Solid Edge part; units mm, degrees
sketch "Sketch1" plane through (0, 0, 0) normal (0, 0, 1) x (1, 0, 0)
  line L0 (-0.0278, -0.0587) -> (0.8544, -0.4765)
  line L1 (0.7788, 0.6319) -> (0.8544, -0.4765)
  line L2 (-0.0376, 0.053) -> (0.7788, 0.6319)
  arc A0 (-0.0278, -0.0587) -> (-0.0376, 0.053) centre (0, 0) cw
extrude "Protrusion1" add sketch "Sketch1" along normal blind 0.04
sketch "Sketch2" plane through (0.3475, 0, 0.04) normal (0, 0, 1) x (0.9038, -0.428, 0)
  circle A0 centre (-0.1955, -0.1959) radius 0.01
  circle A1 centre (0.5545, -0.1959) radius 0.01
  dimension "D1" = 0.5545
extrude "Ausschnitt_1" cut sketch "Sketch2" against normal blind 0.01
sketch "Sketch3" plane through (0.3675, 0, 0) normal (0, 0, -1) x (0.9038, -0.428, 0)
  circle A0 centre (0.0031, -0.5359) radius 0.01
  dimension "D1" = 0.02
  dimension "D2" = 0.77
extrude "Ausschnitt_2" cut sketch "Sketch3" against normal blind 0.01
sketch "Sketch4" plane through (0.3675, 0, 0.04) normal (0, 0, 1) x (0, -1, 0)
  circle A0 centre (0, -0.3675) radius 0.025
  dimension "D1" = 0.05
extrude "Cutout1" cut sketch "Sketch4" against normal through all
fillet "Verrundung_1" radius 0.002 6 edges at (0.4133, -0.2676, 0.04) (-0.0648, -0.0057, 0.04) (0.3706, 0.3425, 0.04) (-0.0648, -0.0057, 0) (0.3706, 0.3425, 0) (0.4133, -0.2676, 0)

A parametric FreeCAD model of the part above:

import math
import FreeCAD as App
import Part
import Sketcher
from FreeCAD import Vector
Q = App.Units.Quantity


def edges_at(feature, points):
    """Names of the edges that pass closest to the given points."""
    edges = feature.Shape.Edges
    near = lambda p: min(range(len(edges)), key=lambda i: edges[i].distToShape(Part.Vertex(*p))[0])
    return sorted({f"Edge{near(p) + 1}" for p in points})

doc = App.newDocument("Part")
body = doc.addObject("PartDesign::Body", "Body")

# Sketch on XY plane
sketch1 = body.newObject("Sketcher::SketchObject", "Sketch")
sketch1.AttachmentSupport = (doc.getObject("XY_Plane"), [""])
sketch1.MapMode = "FlatFace"
sketch1.addGeometry(Part.ArcOfCircle(Part.Circle(Vector(0, 0, 0), Vector(0, 0, 1), 0.06), math.radians(125), math.radians(245)), False)
sketch1.addGeometry(Part.LineSegment(Vector(-0.03, -0.06, 0), Vector(0.85, -0.48, 0)), False)
sketch1.addGeometry(Part.LineSegment(Vector(0.85, -0.48, 0), Vector(0.78, 0.63, 0)), False)
sketch1.addGeometry(Part.LineSegment(Vector(0.78, 0.63, 0), Vector(-0.04, 0.05, 0)), False)
sketch1.addConstraint(Sketcher.Constraint("Tangent", 0, 2, 1, 1))
sketch1.addConstraint(Sketcher.Constraint("Coincident", 1, 2, 2, 1))
sketch1.addConstraint(Sketcher.Constraint("Coincident", 2, 2, 3, 1))
sketch1.addConstraint(Sketcher.Constraint("Tangent", 3, 2, 0, 1))
sketch1.addConstraint(Sketcher.Constraint("Coincident", 0, 3, -1, 1))
sketch1.addConstraint(Sketcher.Constraint("Radius", 0, 0.065))
sketch1.addConstraint(Sketcher.Constraint("Angle", 3, Q("-144.66 deg")))
sketch1.addConstraint(Sketcher.Constraint("Distance", 2, 1.111))
sketch1.addConstraint(Sketcher.Constraint("DistanceY", -1, 1, 2, 2, 0.632))
sketch1.addConstraint(Sketcher.Constraint("DistanceX", 3, 2, 1, 2, 0.892))
pad1 = body.newObject("PartDesign::Pad", "Pad")
pad1.Profile = sketch1
pad1.Length = 0.04

# Sketch on XY plane
sketch2 = body.newObject("Sketcher::SketchObject", "Sketch001")
sketch2.AttachmentSupport = (doc.getObject("XY_Plane"), [""])
sketch2.MapMode = "FlatFace"
sketch2.AttachmentOffset = App.Placement(Vector(0, 0, 0.04), App.Rotation())
sketch2.addGeometry(Part.Circle(Vector(0.087, -0.093, 0), Vector(0, 0, 1), 0.01), False)
sketch2.addGeometry(Part.Circle(Vector(0.765, -0.414, 0), Vector(0, 0, 1), 0.01), False)
sketch2.addConstraint(Sketcher.Constraint("Equal", 0, 1))
sketch2.addConstraint(Sketcher.Constraint("Diameter", 0, 0.02))
sketch2.addConstraint(Sketcher.Constraint("DistanceX", -1, 1, 0, 3, 0.087))
sketch2.addConstraint(Sketcher.Constraint("DistanceY", 1, 3, 0, 3, 0.321))
sketch2.addConstraint(Sketcher.Constraint("DistanceY", 0, 3, -1, 1, 0.0934))
sketch2.addConstraint(Sketcher.Constraint("DistanceX", -1, 1, 1, 3, 0.7648))
pocket1 = body.newObject("PartDesign::Pocket", "Pocket")
pocket1.Profile = sketch2
pocket1.Length = 0.01

# Sketch on XY plane
sketch3 = body.newObject("Sketcher::SketchObject", "Sketch002")
sketch3.AttachmentSupport = (doc.getObject("XY_Plane"), [""])
sketch3.MapMode = "FlatFace"
sketch3.addGeometry(Part.Circle(Vector(0.6, 0.483, 0), Vector(0, 0, 1), 0.01), False)
sketch3.addConstraint(Sketcher.Constraint("Diameter", 0, 0.02))
sketch3.addConstraint(Sketcher.Constraint("DistanceY", -1, 1, 0, 3, 0.483))
sketch3.addConstraint(Sketcher.Constraint("DistanceX", -1, 1, 0, 3, 0.5997))
pocket2 = body.newObject("PartDesign::Pocket", "Pocket001")
pocket2.Profile = sketch3
pocket2.Length = 0.01
pocket2.Reversed = True

# Sketch on XY plane
sketch4 = body.newObject("Sketcher::SketchObject", "Sketch003")
sketch4.AttachmentSupport = (doc.getObject("XY_Plane"), [""])
sketch4.MapMode = "FlatFace"
sketch4.AttachmentOffset = App.Placement(Vector(0, 0, 0.04), App.Rotation())
sketch4.addGeometry(Part.Circle(Vector(0, 0, 0), Vector(0, 0, 1), 0.025), False)
sketch4.addConstraint(Sketcher.Constraint("Coincident", 0, 3, -1, 1))
sketch4.addConstraint(Sketcher.Constraint("Diameter", 0, 0.05))
pocket3 = body.newObject("PartDesign::Pocket", "Pocket002")
pocket3.Profile = sketch4
pocket3.Type = "ThroughAll"
doc.recompute()

fillet = body.newObject("PartDesign::Fillet", "Fillet")
fillet.Base = (pocket3, edges_at(pocket3, [
    (0.413, -0.268, 0.04),
    (-0.065, -0.006, 0.04),
    (0.371, 0.343, 0.04),
    (-0.065, -0.006, 0),
    (0.371, 0.343, 0),
    (0.413, -0.268, 0),
]))
fillet.Radius = 0.002

doc.recompute()
